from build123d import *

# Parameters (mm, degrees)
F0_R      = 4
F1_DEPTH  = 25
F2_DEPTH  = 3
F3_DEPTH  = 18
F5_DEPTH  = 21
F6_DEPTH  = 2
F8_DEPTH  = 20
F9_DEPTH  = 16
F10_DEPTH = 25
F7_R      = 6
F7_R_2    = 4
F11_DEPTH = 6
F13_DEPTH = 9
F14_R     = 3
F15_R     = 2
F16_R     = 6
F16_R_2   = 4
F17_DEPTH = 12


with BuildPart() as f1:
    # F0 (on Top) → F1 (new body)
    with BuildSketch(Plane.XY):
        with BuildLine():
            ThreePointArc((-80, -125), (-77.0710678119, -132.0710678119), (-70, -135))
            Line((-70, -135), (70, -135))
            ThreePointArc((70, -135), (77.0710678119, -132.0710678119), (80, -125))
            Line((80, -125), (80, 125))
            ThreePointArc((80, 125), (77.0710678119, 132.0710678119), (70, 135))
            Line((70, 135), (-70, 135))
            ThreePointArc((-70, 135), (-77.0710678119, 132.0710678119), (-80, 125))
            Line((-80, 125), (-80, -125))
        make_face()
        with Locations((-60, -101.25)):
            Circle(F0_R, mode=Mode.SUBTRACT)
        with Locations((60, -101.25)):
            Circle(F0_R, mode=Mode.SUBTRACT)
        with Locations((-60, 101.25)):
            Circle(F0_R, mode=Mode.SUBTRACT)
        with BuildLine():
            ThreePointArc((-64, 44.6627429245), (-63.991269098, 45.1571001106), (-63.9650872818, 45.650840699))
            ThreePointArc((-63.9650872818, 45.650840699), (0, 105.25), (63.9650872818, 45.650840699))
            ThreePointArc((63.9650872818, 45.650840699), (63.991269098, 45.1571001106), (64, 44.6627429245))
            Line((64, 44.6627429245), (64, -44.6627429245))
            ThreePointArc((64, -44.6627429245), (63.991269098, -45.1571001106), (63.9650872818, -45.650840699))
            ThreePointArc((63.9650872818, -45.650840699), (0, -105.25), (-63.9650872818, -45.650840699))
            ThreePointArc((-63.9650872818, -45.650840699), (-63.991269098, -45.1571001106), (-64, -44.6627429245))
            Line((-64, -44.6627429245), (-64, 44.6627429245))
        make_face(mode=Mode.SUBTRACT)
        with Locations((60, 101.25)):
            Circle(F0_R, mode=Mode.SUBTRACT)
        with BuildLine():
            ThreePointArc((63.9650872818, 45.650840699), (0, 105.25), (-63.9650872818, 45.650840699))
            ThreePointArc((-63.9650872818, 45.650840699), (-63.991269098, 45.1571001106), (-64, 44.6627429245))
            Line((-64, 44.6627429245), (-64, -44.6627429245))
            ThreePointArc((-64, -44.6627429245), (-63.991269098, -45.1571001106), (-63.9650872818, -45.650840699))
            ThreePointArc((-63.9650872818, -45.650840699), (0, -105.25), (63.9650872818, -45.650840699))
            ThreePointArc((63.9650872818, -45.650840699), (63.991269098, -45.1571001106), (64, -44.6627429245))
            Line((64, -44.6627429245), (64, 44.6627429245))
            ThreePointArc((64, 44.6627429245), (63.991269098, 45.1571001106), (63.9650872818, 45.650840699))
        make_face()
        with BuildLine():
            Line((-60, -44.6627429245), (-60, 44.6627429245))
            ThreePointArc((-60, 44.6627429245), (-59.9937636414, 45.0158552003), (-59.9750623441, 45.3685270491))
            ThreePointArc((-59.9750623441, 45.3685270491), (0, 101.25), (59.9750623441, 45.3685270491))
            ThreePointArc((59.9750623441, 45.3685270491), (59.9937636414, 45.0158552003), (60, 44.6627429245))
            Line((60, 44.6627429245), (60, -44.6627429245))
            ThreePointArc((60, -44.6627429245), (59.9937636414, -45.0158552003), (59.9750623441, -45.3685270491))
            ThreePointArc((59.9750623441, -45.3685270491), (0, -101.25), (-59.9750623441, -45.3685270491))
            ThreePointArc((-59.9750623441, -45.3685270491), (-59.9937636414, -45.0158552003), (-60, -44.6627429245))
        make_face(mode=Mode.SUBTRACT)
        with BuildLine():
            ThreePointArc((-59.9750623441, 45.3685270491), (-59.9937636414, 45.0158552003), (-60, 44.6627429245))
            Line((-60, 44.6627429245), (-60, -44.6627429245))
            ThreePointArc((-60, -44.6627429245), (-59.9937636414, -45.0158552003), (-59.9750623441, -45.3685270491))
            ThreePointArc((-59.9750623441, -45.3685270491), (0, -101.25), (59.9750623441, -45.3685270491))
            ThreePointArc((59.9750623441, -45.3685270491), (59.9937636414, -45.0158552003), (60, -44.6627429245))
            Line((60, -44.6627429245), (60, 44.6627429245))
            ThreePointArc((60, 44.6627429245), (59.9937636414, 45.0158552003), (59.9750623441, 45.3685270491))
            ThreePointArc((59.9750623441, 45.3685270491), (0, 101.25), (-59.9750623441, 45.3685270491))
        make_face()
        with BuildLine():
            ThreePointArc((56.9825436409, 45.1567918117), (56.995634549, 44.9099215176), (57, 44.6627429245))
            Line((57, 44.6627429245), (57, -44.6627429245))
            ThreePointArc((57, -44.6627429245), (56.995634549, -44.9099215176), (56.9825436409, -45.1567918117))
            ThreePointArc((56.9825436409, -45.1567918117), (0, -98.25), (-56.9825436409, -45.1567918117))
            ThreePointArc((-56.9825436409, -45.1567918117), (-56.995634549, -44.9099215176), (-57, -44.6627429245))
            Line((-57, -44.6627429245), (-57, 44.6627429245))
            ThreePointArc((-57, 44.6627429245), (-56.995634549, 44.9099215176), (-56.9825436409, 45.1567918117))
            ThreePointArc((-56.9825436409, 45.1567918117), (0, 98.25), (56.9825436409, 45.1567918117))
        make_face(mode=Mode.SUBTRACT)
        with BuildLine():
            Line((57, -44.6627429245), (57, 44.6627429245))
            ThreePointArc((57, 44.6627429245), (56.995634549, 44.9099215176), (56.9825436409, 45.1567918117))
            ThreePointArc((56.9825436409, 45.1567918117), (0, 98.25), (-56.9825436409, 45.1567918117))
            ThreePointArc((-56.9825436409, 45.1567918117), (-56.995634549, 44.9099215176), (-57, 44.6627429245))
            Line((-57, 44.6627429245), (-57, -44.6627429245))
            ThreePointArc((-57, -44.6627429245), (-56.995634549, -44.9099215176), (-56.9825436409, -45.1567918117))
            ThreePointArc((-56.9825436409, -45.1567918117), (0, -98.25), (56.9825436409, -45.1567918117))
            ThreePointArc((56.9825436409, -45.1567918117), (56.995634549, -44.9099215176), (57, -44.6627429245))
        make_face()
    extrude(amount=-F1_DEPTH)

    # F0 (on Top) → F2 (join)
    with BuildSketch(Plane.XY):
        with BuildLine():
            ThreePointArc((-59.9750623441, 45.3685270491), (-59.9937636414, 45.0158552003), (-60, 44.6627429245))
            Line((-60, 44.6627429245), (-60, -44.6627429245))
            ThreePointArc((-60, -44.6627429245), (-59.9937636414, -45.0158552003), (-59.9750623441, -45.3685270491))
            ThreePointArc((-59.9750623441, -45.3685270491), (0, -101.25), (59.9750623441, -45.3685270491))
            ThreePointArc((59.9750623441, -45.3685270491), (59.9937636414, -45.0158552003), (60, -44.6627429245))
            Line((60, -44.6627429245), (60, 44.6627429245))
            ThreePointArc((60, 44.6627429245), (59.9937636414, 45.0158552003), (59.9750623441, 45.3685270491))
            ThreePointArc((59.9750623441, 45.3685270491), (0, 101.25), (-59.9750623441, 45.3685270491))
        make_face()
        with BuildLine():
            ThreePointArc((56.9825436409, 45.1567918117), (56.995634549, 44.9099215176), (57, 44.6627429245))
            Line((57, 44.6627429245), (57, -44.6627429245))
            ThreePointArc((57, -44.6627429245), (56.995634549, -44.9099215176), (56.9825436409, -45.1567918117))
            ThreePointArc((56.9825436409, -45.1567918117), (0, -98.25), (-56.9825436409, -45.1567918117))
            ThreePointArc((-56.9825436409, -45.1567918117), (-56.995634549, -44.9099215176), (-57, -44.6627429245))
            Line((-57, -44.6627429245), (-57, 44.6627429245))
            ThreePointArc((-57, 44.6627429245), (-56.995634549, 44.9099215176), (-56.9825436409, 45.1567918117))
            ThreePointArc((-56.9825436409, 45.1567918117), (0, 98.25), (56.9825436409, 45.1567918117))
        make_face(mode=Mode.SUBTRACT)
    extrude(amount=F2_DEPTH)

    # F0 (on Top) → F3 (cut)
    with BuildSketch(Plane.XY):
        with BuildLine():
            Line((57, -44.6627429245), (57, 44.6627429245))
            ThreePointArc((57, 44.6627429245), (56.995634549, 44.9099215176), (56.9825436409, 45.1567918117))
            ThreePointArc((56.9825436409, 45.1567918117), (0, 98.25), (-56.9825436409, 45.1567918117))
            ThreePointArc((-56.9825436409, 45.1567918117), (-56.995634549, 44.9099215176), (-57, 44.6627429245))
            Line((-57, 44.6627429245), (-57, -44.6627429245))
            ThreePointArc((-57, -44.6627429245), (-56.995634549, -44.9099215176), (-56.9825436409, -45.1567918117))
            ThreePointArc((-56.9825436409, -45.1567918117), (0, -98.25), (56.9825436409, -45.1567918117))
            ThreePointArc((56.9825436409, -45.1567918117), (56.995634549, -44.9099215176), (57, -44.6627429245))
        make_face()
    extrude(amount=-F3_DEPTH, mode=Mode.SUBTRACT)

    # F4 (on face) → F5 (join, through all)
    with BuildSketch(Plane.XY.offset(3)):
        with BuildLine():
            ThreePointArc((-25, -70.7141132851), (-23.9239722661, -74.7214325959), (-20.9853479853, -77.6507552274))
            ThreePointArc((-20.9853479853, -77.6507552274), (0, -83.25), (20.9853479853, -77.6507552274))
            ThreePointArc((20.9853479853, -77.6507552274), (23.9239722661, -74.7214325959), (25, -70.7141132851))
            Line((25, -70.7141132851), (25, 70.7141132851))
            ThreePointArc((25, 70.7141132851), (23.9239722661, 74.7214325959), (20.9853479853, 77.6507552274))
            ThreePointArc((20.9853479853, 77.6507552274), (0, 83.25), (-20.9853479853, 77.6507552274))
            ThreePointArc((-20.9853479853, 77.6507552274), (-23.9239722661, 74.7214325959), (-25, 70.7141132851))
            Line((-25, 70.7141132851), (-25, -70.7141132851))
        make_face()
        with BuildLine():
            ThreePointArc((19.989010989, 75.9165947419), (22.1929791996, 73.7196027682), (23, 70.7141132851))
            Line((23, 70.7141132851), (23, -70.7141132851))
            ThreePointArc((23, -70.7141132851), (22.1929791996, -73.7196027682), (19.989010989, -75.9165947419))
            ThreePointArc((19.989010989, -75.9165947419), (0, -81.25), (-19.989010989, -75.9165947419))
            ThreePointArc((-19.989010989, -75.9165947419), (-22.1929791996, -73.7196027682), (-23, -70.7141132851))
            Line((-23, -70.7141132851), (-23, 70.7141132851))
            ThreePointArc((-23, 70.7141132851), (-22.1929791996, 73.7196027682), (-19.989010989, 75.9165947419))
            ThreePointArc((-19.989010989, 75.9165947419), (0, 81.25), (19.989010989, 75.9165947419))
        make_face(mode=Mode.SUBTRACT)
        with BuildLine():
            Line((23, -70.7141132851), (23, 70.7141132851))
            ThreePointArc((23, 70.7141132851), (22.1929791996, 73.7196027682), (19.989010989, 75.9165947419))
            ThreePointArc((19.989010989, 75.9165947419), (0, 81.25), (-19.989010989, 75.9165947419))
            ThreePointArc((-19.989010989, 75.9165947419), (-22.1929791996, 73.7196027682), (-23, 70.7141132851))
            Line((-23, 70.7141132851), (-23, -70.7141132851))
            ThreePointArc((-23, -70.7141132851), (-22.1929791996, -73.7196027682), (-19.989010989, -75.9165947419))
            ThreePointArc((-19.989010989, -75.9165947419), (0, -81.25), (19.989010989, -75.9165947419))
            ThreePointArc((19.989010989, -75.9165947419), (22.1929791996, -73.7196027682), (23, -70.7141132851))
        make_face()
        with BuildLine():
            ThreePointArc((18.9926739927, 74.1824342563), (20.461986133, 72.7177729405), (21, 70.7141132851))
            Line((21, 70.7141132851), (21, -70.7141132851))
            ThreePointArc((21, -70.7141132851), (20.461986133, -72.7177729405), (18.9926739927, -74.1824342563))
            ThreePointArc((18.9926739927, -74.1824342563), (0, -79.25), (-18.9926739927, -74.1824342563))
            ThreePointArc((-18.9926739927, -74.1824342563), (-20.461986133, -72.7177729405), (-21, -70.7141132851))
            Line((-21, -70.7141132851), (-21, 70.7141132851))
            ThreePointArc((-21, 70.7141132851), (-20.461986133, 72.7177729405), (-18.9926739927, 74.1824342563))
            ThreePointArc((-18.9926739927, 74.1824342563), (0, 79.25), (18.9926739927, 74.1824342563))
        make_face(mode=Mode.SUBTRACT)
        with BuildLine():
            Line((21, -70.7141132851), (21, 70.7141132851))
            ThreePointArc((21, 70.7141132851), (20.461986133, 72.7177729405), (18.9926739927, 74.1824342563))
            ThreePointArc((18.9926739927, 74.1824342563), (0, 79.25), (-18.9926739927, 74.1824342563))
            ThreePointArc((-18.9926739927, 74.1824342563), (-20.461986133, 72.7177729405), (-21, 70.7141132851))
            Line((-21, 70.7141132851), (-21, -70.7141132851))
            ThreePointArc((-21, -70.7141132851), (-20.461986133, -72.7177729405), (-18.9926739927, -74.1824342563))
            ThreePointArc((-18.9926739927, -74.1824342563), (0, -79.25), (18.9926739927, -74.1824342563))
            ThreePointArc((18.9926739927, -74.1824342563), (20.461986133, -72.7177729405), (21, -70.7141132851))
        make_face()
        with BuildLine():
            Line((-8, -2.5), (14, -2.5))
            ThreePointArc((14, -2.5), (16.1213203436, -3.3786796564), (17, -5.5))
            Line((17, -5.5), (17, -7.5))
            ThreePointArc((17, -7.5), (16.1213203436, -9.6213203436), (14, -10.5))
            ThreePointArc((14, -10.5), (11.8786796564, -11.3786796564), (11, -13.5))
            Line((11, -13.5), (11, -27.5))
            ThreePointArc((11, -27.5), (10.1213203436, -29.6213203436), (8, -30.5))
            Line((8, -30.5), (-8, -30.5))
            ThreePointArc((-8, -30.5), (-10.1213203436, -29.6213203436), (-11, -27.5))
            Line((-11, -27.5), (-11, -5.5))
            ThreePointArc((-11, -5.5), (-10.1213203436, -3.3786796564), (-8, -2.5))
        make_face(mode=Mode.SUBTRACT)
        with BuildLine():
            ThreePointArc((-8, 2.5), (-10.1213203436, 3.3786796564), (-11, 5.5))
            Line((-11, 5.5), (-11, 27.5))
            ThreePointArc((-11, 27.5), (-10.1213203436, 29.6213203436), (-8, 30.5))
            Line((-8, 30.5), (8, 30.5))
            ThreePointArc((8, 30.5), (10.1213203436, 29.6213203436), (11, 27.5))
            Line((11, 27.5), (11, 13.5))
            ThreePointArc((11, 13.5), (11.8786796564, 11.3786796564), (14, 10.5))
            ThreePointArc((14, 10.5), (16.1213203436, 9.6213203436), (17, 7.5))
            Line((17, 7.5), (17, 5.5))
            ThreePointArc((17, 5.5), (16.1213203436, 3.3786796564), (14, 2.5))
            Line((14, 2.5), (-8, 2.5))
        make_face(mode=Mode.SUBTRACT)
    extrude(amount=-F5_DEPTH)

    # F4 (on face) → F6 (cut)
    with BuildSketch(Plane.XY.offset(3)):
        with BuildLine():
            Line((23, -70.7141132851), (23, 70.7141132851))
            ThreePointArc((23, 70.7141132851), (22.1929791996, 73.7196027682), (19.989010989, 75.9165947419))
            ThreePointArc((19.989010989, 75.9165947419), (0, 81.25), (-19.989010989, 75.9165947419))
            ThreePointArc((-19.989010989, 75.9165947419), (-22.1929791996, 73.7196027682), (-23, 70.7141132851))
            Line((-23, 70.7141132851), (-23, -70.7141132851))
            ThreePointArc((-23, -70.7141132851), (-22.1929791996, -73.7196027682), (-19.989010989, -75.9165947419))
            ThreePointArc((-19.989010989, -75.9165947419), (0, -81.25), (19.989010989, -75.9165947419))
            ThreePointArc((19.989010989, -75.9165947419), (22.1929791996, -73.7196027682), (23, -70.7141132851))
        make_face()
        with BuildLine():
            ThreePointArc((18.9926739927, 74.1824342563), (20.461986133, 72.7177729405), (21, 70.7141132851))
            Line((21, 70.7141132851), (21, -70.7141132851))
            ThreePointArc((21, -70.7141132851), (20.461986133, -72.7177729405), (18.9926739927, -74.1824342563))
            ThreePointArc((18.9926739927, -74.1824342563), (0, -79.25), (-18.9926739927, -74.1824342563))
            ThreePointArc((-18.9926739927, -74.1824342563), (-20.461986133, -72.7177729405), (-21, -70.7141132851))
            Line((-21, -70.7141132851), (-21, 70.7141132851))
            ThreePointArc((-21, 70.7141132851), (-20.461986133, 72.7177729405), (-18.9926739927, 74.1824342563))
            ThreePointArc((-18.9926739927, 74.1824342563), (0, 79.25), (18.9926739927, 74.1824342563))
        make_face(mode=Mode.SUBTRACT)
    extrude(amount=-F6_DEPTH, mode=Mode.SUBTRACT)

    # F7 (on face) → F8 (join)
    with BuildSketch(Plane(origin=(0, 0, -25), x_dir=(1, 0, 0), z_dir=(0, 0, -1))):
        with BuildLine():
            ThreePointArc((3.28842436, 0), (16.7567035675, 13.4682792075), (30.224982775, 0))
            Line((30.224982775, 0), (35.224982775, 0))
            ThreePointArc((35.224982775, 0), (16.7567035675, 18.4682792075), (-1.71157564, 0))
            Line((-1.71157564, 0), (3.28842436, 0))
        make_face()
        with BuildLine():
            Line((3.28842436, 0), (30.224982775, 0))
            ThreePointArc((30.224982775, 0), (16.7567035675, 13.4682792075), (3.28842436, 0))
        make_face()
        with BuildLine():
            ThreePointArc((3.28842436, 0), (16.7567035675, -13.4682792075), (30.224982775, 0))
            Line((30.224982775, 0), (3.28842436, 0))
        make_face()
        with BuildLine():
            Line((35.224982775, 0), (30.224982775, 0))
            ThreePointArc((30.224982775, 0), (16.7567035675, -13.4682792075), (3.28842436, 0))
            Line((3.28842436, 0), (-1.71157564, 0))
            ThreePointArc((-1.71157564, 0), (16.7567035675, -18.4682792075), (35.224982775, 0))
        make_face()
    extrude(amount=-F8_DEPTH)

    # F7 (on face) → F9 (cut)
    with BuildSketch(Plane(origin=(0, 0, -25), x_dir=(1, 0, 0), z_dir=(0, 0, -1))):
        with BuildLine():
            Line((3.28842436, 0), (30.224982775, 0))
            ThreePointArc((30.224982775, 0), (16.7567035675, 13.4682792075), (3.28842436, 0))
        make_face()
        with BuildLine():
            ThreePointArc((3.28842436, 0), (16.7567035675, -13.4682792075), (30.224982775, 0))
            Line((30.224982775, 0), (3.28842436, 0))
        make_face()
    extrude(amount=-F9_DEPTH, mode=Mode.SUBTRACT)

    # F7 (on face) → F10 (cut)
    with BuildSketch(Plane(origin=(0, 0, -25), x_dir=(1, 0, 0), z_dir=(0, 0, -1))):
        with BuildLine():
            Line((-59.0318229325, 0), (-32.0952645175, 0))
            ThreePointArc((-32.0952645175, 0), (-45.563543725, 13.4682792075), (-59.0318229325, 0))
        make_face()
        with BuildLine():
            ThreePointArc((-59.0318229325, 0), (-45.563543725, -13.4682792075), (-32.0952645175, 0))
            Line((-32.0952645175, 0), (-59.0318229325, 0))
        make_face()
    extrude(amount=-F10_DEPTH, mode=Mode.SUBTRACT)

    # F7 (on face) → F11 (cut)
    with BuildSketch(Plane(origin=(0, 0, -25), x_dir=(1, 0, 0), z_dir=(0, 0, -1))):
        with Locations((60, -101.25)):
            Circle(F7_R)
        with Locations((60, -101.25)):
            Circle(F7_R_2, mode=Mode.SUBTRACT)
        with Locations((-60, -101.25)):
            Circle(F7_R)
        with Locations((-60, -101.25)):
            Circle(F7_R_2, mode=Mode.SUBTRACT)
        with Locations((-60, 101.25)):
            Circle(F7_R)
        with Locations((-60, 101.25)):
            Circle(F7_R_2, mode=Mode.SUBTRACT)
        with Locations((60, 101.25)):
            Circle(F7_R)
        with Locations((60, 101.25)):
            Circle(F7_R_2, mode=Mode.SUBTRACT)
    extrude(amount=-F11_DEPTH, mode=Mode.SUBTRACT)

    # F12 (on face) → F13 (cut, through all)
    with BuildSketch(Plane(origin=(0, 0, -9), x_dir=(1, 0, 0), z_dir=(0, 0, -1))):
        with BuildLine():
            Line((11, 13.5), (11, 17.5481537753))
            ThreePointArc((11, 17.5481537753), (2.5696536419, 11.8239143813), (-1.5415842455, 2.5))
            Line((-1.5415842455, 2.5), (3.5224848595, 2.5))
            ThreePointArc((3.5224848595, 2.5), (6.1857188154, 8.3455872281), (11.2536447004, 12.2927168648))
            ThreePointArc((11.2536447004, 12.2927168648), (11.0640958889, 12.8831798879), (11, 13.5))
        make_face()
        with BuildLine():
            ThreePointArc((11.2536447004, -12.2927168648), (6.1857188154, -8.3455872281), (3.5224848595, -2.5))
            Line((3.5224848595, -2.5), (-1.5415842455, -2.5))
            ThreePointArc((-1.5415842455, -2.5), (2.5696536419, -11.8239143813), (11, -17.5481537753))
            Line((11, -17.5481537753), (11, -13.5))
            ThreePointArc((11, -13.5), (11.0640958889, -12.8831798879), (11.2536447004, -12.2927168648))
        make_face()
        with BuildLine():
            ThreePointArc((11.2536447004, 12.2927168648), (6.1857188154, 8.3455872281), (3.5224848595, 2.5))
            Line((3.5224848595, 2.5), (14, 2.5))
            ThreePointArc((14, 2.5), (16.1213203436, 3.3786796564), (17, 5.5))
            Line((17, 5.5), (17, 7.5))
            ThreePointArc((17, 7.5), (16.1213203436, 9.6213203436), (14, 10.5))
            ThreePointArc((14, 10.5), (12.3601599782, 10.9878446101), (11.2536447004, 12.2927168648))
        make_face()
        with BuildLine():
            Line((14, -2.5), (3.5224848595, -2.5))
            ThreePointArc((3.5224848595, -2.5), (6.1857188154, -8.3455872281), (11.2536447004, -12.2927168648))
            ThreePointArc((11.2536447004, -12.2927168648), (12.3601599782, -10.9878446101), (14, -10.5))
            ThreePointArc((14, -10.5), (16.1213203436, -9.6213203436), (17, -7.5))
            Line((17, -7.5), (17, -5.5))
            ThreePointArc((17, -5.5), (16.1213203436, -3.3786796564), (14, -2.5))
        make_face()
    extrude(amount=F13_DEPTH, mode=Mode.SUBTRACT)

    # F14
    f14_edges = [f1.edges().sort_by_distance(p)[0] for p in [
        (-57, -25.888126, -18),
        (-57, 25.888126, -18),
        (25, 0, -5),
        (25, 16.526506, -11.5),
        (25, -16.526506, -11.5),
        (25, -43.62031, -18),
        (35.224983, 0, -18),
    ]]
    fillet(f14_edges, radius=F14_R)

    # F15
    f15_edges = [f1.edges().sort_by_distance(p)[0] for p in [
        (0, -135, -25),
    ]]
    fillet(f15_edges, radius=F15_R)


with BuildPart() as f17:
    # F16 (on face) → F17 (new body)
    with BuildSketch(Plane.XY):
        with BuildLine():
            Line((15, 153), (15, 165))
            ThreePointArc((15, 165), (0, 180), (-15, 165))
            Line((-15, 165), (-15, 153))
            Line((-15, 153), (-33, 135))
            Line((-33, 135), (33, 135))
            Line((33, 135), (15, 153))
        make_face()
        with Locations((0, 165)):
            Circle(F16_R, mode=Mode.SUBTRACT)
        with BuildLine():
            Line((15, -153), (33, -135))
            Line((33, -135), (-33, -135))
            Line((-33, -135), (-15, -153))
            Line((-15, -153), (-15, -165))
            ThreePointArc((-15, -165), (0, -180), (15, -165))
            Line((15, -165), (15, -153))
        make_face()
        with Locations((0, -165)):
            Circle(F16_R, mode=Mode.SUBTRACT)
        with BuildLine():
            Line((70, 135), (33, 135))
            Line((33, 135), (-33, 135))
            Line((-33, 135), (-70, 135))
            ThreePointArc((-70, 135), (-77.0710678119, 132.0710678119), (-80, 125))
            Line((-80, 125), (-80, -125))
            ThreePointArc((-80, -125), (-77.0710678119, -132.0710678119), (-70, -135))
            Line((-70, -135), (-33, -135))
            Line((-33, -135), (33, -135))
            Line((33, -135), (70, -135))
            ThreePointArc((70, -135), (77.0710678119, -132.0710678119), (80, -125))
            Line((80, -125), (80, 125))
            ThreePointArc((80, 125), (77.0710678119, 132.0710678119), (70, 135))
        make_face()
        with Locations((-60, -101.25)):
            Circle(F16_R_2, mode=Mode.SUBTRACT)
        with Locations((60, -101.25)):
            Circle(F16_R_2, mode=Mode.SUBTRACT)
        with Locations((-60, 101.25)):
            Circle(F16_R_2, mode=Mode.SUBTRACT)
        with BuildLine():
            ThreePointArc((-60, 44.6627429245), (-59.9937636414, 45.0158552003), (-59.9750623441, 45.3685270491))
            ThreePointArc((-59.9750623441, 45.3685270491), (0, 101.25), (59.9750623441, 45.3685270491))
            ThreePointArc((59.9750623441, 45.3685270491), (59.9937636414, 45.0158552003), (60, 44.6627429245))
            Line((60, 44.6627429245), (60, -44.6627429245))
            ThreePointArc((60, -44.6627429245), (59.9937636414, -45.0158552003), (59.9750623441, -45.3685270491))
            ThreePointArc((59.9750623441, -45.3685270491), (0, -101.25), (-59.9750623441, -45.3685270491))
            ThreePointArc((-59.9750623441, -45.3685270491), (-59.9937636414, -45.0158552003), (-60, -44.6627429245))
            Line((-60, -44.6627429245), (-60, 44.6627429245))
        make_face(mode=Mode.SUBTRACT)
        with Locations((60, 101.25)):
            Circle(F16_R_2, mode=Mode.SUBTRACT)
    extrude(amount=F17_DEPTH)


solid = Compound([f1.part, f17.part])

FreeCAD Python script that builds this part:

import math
import FreeCAD as App
import Part
import Sketcher

V = App.Vector


def edges_at(feature, points):
    """Names of the edges that pass closest to the given points."""
    edges = feature.Shape.Edges
    near = lambda p: min(range(len(edges)), key=lambda i: edges[i].distToShape(Part.Vertex(*p))[0])
    return sorted({f"Edge{near(p) + 1}" for p in points})

doc = App.newDocument("Part")
body = doc.addObject("PartDesign::Body", "Body")

sketch1 = body.newObject("Sketcher::SketchObject", "Sketch")
sketch1.AttachmentSupport = (doc.getObject("XY_Plane"), [""])
sketch1.MapMode = "FlatFace"
sketch1.addGeometry([
    Part.ArcOfCircle(Part.Circle(V(-70, -125, 0), V(0, 0, 1), 10), math.radians(180), math.radians(270)),
    Part.LineSegment(V(-70, -135, 0), V(70, -135, 0)),
    Part.ArcOfCircle(Part.Circle(V(70, -125, 0), V(0, 0, 1), 10), math.radians(-90), math.radians(0)),
    Part.LineSegment(V(80, -125, 0), V(80, 125, 0)),
    Part.ArcOfCircle(Part.Circle(V(70, 125, 0), V(0, 0, 1), 10), math.radians(0), math.radians(90)),
    Part.LineSegment(V(70, 135, 0), V(-70, 135, 0)),
    Part.ArcOfCircle(Part.Circle(V(-70, 125, 0), V(0, 0, 1), 10), math.radians(90), math.radians(180)),
    Part.LineSegment(V(-80, 125, 0), V(-80, -125, 0)),
    Part.Circle(V(-60, -101.2, 0), V(0, 0, 1), 4),
    Part.Circle(V(60, -101.2, 0), V(0, 0, 1), 4),
    Part.Circle(V(-60, 101.2, 0), V(0, 0, 1), 4),
    Part.Circle(V(60, 101.2, 0), V(0, 0, 1), 4),
], False)
sketch1.addConstraint([
    Sketcher.Constraint("Tangent", 0, 2, 1, 1),
    Sketcher.Constraint("Tangent", 1, 2, 2, 1),
    Sketcher.Constraint("Tangent", 2, 2, 3, 1),
    Sketcher.Constraint("Tangent", 3, 2, 4, 1),
    Sketcher.Constraint("Tangent", 4, 2, 5, 1),
    Sketcher.Constraint("Tangent", 5, 2, 6, 1),
    Sketcher.Constraint("Tangent", 6, 2, 7, 1),
    Sketcher.Constraint("Tangent", 7, 2, 0, 1),
    Sketcher.Constraint("Horizontal", 1),
    Sketcher.Constraint("Vertical", 3),
    Sketcher.Constraint("Horizontal", 5),
    Sketcher.Constraint("Vertical", 7),
    Sketcher.Constraint("Equal", 0, 2),
    Sketcher.Constraint("Equal", 2, 4),
    Sketcher.Constraint("Equal", 4, 6),
    Sketcher.Constraint("Equal", 8, 9),
    Sketcher.Constraint("Equal", 9, 10),
    Sketcher.Constraint("Equal", 10, 11),
    Sketcher.Constraint("Symmetric", 0, 3, 4, 3, -1, 1),
    Sketcher.Constraint("Symmetric", 9, 3, 10, 3, -1, 1),
    Sketcher.Constraint("Symmetric", 8, 3, 11, 3, -1, 1),
    Sketcher.Constraint("Symmetric", 8, 3, 9, 3, -2),
    Sketcher.Constraint("Diameter", 8, 8.0),
    Sketcher.Constraint("Radius", 0, 10.0),
    Sketcher.Constraint("DistanceX", 1, 1, 1, 2, 140.0),
    Sketcher.Constraint("DistanceY", 3, 1, 3, 2, 250.0),
    Sketcher.Constraint("DistanceX", 8, 3, -1, 1, 60.0),
    Sketcher.Constraint("DistanceY", 8, 3, 10, 3, 202.5),
])
pad1 = body.newObject("PartDesign::Pad", "Pad")
pad1.Profile = sketch1
pad1.Length = 25
pad1.Reversed = True

sketch2 = body.newObject("Sketcher::SketchObject", "Sketch001")
sketch2.AttachmentSupport = (doc.getObject("XY_Plane"), [""])
sketch2.MapMode = "FlatFace"
sketch2.addGeometry([
    Part.ArcOfCircle(Part.Circle(V(-50, 44.66, 0), V(0, 0, 1), 10), math.radians(175.95), math.radians(180)),
    Part.LineSegment(V(-60, 44.66, 0), V(-60, -44.66, 0)),
    Part.ArcOfCircle(Part.Circle(V(-50, -44.66, 0), V(0, 0, 1), 10), math.radians(-180), math.radians(-175.95)),
    Part.ArcOfCircle(Part.Circle(V(0, -41.12, 0), V(0, 0, 1), 60.12), math.radians(-176), math.radians(-4)),
    Part.ArcOfCircle(Part.Circle(V(50, -44.66, 0), V(0, 0, 1), 10), math.radians(-4.05), math.radians(0)),
    Part.LineSegment(V(60, -44.66, 0), V(60, 44.66, 0)),
    Part.ArcOfCircle(Part.Circle(V(50, 44.66, 0), V(0, 0, 1), 10), math.radians(0), math.radians(4.05)),
    Part.ArcOfCircle(Part.Circle(V(0, 41.12, 0), V(0, 0, 1), 60.12), math.radians(4), math.radians(176)),
    Part.ArcOfCircle(Part.Circle(V(0, 41.12, 0), V(0, 0, 1), 57.12), math.radians(4), math.radians(176)),
    Part.ArcOfCircle(Part.Circle(V(50, 44.66, 0), V(0, 0, 1), 7), math.radians(0), math.radians(4.05)),
    Part.LineSegment(V(57, 44.66, 0), V(57, -44.66, 0)),
    Part.ArcOfCircle(Part.Circle(V(50, -44.66, 0), V(0, 0, 1), 7), math.radians(-4.05), math.radians(0)),
    Part.ArcOfCircle(Part.Circle(V(0, -41.12, 0), V(0, 0, 1), 57.12), math.radians(-176), math.radians(-4)),
    Part.ArcOfCircle(Part.Circle(V(-50, -44.66, 0), V(0, 0, 1), 7), math.radians(180), math.radians(184.05)),
    Part.LineSegment(V(-57, -44.66, 0), V(-57, 44.66, 0)),
    Part.ArcOfCircle(Part.Circle(V(-50, 44.66, 0), V(0, 0, 1), 7), math.radians(175.95), math.radians(180)),
], False)
sketch2.addConstraint([
    Sketcher.Constraint("Tangent", 0, 2, 1, 1),
    Sketcher.Constraint("Tangent", 1, 2, 2, 1),
    Sketcher.Constraint("Tangent", 2, 2, 3, 1),
    Sketcher.Constraint("Tangent", 3, 2, 4, 1),
    Sketcher.Constraint("Tangent", 4, 2, 5, 1),
    Sketcher.Constraint("Tangent", 5, 2, 6, 1),
    Sketcher.Constraint("Tangent", 6, 2, 7, 1),
    Sketcher.Constraint("Tangent", 7, 2, 0, 1),
    Sketcher.Constraint("Tangent", 8, 1, 9, 2),
    Sketcher.Constraint("Tangent", 9, 1, 10, 1),
    Sketcher.Constraint("Tangent", 10, 2, 11, 2),
    Sketcher.Constraint("Tangent", 11, 1, 12, 2),
    Sketcher.Constraint("Tangent", 12, 1, 13, 2),
    Sketcher.Constraint("Tangent", 13, 1, 14, 1),
    Sketcher.Constraint("Tangent", 14, 2, 15, 2),
    Sketcher.Constraint("Tangent", 15, 1, 8, 2),
    Sketcher.Constraint("Vertical", 1),
    Sketcher.Constraint("Vertical", 5),
    Sketcher.Constraint("Vertical", 10),
    Sketcher.Constraint("Vertical", 14),
    Sketcher.Constraint("Coincident", 8, 3, 7, 3),
    Sketcher.Constraint("Coincident", 9, 3, 6, 3),
    Sketcher.Constraint("Coincident", 11, 3, 4, 3),
    Sketcher.Constraint("Coincident", 12, 3, 3, 3),
    Sketcher.Constraint("Coincident", 13, 3, 2, 3),
    Sketcher.Constraint("Equal", 0, 2),
    Sketcher.Constraint("Equal", 2, 4),
    Sketcher.Constraint("Equal", 4, 6),
    Sketcher.Constraint("Equal", 3, 7),
    Sketcher.Constraint("Equal", 13, 15),
    Sketcher.Constraint("Symmetric", 0, 3, 4, 3, -1, 1),
    Sketcher.Constraint("Symmetric", 3, 3, 7, 3, -1),
    Sketcher.Constraint("Radius", 0, 10.0),
    Sketcher.Constraint("Radius", 9, 7.0),
    Sketcher.Constraint("DistanceX", 0, 3, -1, 1, 50.0),
    Sketcher.Constraint("Radius", 3, 60.125),
    Sketcher.Constraint("DistanceY", 3, 3, 7, 3, 82.25),
])
pad2 = body.newObject("PartDesign::Pad", "Pad001")
pad2.Profile = sketch2
pad2.Length = 3

sketch3 = body.newObject("Sketcher::SketchObject", "Sketch002")
sketch3.AttachmentSupport = (doc.getObject("XY_Plane"), [""])
sketch3.MapMode = "FlatFace"
sketch3.addGeometry([
    Part.LineSegment(V(57, -44.66, 0), V(57, 44.66, 0)),
    Part.ArcOfCircle(Part.Circle(V(50, 44.66, 0), V(0, 0, 1), 7), math.radians(0), math.radians(4.05)),
    Part.ArcOfCircle(Part.Circle(V(0, 41.12, 0), V(0, 0, 1), 57.12), math.radians(4), math.radians(176)),
    Part.ArcOfCircle(Part.Circle(V(-50, 44.66, 0), V(0, 0, 1), 7), math.radians(175.95), math.radians(180)),
    Part.LineSegment(V(-57, 44.66, 0), V(-57, -44.66, 0)),
    Part.ArcOfCircle(Part.Circle(V(-50, -44.66, 0), V(0, 0, 1), 7), math.radians(180), math.radians(184.05)),
    Part.ArcOfCircle(Part.Circle(V(0, -41.12, 0), V(0, 0, 1), 57.12), math.radians(-176), math.radians(-4)),
    Part.ArcOfCircle(Part.Circle(V(50, -44.66, 0), V(0, 0, 1), 7), math.radians(-4.05), math.radians(0)),
], False)
sketch3.addConstraint([
    Sketcher.Constraint("Tangent", 0, 2, 1, 1),
    Sketcher.Constraint("Tangent", 1, 2, 2, 1),
    Sketcher.Constraint("Tangent", 2, 2, 3, 1),
    Sketcher.Constraint("Tangent", 3, 2, 4, 1),
    Sketcher.Constraint("Tangent", 4, 2, 5, 1),
    Sketcher.Constraint("Tangent", 5, 2, 6, 1),
    Sketcher.Constraint("Tangent", 6, 2, 7, 1),
    Sketcher.Constraint("Tangent", 7, 2, 0, 1),
    Sketcher.Constraint("Vertical", 0),
    Sketcher.Constraint("Vertical", 4),
    Sketcher.Constraint("Equal", 1, 3),
    Sketcher.Constraint("Equal", 3, 5),
    Sketcher.Constraint("Equal", 2, 6),
    Sketcher.Constraint("Equal", 5, 7),
    Sketcher.Constraint("Symmetric", 1, 3, 5, 3, -1, 1),
    Sketcher.Constraint("Symmetric", 2, 3, 6, 3, -1),
    Sketcher.Constraint("Radius", 1, 7.0),
    Sketcher.Constraint("DistanceX", -1, 1, 1, 3, 50.0),
    Sketcher.Constraint("Radius", 2, 57.125),
    Sketcher.Constraint("DistanceY", 6, 3, 2, 3, 82.25),
])
pocket1 = body.newObject("PartDesign::Pocket", "Pocket")
pocket1.Profile = sketch3
pocket1.Length = 18

sketch4 = body.newObject("Sketcher::SketchObject", "Sketch003")
sketch4.AttachmentSupport = (doc.getObject("XY_Plane"), [""])
sketch4.MapMode = "FlatFace"
sketch4.AttachmentOffset = App.Placement(V(0, 0, 3), App.Rotation())
sketch4.addGeometry([
    Part.ArcOfCircle(Part.Circle(V(-17, -70.7, 0), V(0, 0, 1), 8), math.radians(180), math.radians(240)),
    Part.ArcOfCircle(Part.Circle(V(0, -41.1, 0), V(0, 0, 1), 42.1), math.radians(-120), math.radians(-60)),
    Part.ArcOfCircle(Part.Circle(V(17, -70.7, 0), V(0, 0, 1), 8), math.radians(-60), math.radians(0)),
    Part.LineSegment(V(25, -70.7, 0), V(25, 70.7, 0)),
    Part.ArcOfCircle(Part.Circle(V(17, 70.7, 0), V(0, 0, 1), 8), math.radians(0), math.radians(60)),
    Part.ArcOfCircle(Part.Circle(V(0, 41.1, 0), V(0, 0, 1), 42.1), math.radians(60), math.radians(120)),
    Part.ArcOfCircle(Part.Circle(V(-17, 70.7, 0), V(0, 0, 1), 8), math.radians(120), math.radians(180)),
    Part.LineSegment(V(-25, 70.7, 0), V(-25, -70.7, 0)),
    Part.ArcOfCircle(Part.Circle(V(-8, -5.5, 0), V(0, 0, 1), 3), math.radians(90), math.radians(180)),
    Part.LineSegment(V(-8, -2.5, 0), V(14, -2.5, 0)),
    Part.ArcOfCircle(Part.Circle(V(14, -5.5, 0), V(0, 0, 1), 3), math.radians(0), math.radians(90)),
    Part.LineSegment(V(17, -5.5, 0), V(17, -7.5, 0)),
    Part.ArcOfCircle(Part.Circle(V(14, -7.5, 0), V(0, 0, 1), 3), math.radians(-90), math.radians(0)),
    Part.ArcOfCircle(Part.Circle(V(14, -13.5, 0), V(0, 0, 1), 3), math.radians(90), math.radians(180)),
    Part.LineSegment(V(11, -13.5, 0), V(11, -27.5, 0)),
    Part.ArcOfCircle(Part.Circle(V(8, -27.5, 0), V(0, 0, 1), 3), math.radians(-90), math.radians(0)),
    Part.LineSegment(V(8, -30.5, 0), V(-8, -30.5, 0)),
    Part.ArcOfCircle(Part.Circle(V(-8, -27.5, 0), V(0, 0, 1), 3), math.radians(180), math.radians(270)),
    Part.LineSegment(V(-11, -27.5, 0), V(-11, -5.5, 0)),
    Part.LineSegment(V(14, 2.5, 0), V(-8, 2.5, 0)),
    Part.ArcOfCircle(Part.Circle(V(-8, 5.5, 0), V(0, 0, 1), 3), math.radians(180), math.radians(270)),
    Part.LineSegment(V(-11, 5.5, 0), V(-11, 27.5, 0)),
    Part.ArcOfCircle(Part.Circle(V(-8, 27.5, 0), V(0, 0, 1), 3), math.radians(90), math.radians(180)),
    Part.LineSegment(V(-8, 30.5, 0), V(8, 30.5, 0)),
    Part.ArcOfCircle(Part.Circle(V(8, 27.5, 0), V(0, 0, 1), 3), math.radians(0), math.radians(90)),
    Part.LineSegment(V(11, 27.5, 0), V(11, 13.5, 0)),
    Part.ArcOfCircle(Part.Circle(V(14, 13.5, 0), V(0, 0, 1), 3), math.radians(180), math.radians(270)),
    Part.ArcOfCircle(Part.Circle(V(14, 7.5, 0), V(0, 0, 1), 3), math.radians(0), math.radians(90)),
    Part.LineSegment(V(17, 7.5, 0), V(17, 5.5, 0)),
    Part.ArcOfCircle(Part.Circle(V(14, 5.5, 0), V(0, 0, 1), 3), math.radians(-90), math.radians(0)),
], False)
sketch4.addConstraint([
    Sketcher.Constraint("Tangent", 0, 2, 1, 1),
    Sketcher.Constraint("Tangent", 1, 2, 2, 1),
    Sketcher.Constraint("Tangent", 2, 2, 3, 1),
    Sketcher.Constraint("Tangent", 3, 2, 4, 1),
    Sketcher.Constraint("Tangent", 4, 2, 5, 1),
    Sketcher.Constraint("Tangent", 5, 2, 6, 1),
    Sketcher.Constraint("Tangent", 6, 2, 7, 1),
    Sketcher.Constraint("Tangent", 7, 2, 0, 1),
    Sketcher.Constraint("Tangent", 8, 1, 9, 1),
    Sketcher.Constraint("Tangent", 9, 2, 10, 2),
    Sketcher.Constraint("Tangent", 10, 1, 11, 1),
    Sketcher.Constraint("Tangent", 11, 2, 12, 2),
    Sketcher.Constraint("Tangent", 12, 1, 13, 1),
    Sketcher.Constraint("Tangent", 13, 2, 14, 1),
    Sketcher.Constraint("Tangent", 14, 2, 15, 2),
    Sketcher.Constraint("Tangent", 15, 1, 16, 1),
    Sketcher.Constraint("Tangent", 16, 2, 17, 2),
    Sketcher.Constraint("Tangent", 17, 1, 18, 1),
    Sketcher.Constraint("Tangent", 18, 2, 8, 2),
    Sketcher.Constraint("Tangent", 19, 2, 20, 2),
    Sketcher.Constraint("Tangent", 20, 1, 21, 1),
    Sketcher.Constraint("Tangent", 21, 2, 22, 2),
    Sketcher.Constraint("Tangent", 22, 1, 23, 1),
    Sketcher.Constraint("Tangent", 23, 2, 24, 2),
    Sketcher.Constraint("Tangent", 24, 1, 25, 1),
    Sketcher.Constraint("Tangent", 25, 2, 26, 1),
    Sketcher.Constraint("Tangent", 26, 2, 27, 2),
    Sketcher.Constraint("Tangent", 27, 1, 28, 1),
    Sketcher.Constraint("Tangent", 28, 2, 29, 2),
    Sketcher.Constraint("Tangent", 29, 1, 19, 1),
    Sketcher.Constraint("Vertical", 3),
    Sketcher.Constraint("Vertical", 7),
    Sketcher.Constraint("Horizontal", 9),
    Sketcher.Constraint("Vertical", 11),
    Sketcher.Constraint("Vertical", 14),
    Sketcher.Constraint("Horizontal", 16),
    Sketcher.Constraint("Vertical", 18),
    Sketcher.Constraint("Horizontal", 19),
    Sketcher.Constraint("Vertical", 21),
    Sketcher.Constraint("Horizontal", 23),
    Sketcher.Constraint("Vertical", 25),
    Sketcher.Constraint("Vertical", 28),
    Sketcher.Constraint("Equal", 0, 2),
    Sketcher.Constraint("Equal", 2, 4),
    Sketcher.Constraint("Equal", 1, 5),
    Sketcher.Constraint("Equal", 4, 6),
    Sketcher.Constraint("Equal", 8, 10),
    Sketcher.Constraint("Equal", 10, 12),
    Sketcher.Constraint("Equal", 12, 13),
    Sketcher.Constraint("Equal", 13, 15),
    Sketcher.Constraint("Equal", 15, 17),
    Sketcher.Constraint("Equal", 17, 20),
    Sketcher.Constraint("Equal", 20, 22),
    Sketcher.Constraint("Equal", 22, 24),
    Sketcher.Constraint("Equal", 24, 26),
    Sketcher.Constraint("Equal", 26, 27),
    Sketcher.Constraint("Equal", 27, 29),
    Sketcher.Constraint("Symmetric", 0, 3, 4, 3, -1, 1),
    Sketcher.Constraint("Symmetric", 15, 3, 22, 3, -1, 1),
    Sketcher.Constraint("Symmetric", 1, 3, 5, 3, -1),
    Sketcher.Constraint("Symmetric", 8, 3, 20, 3, -1),
    Sketcher.Constraint("Symmetric", 13, 3, 26, 3, -1),
    Sketcher.Constraint("Vertical", 12, 3, 13, 3),
    Sketcher.Constraint("Vertical", 26, 3, 27, 3),
    Sketcher.Constraint("Vertical", 4, 3, 10, 1),
    Sketcher.Constraint("Equal", 19, 18),
    Sketcher.Constraint("Radius", 0, 8.0),
    Sketcher.Constraint("Radius", 8, 3.0),
    Sketcher.Constraint("DistanceX", 9, 1, 9, 2, 22.0),
    Sketcher.Constraint("DistanceY", 11, 2, 11, 1, 2.0),
    Sketcher.Constraint("Radius", 1, 42.125),
    Sketcher.Constraint("DistanceY", 8, 3, 20, 3, 11.0),
    Sketcher.Constraint("DistanceY", 1, 3, 5, 3, 82.25),
])
pad3 = body.newObject("PartDesign::Pad", "Pad002")
pad3.Profile = sketch4
pad3.Type = "UpToLast"
pad3.Reversed = True

sketch5 = body.newObject("Sketcher::SketchObject", "Sketch004")
sketch5.AttachmentSupport = (doc.getObject("XY_Plane"), [""])
sketch5.MapMode = "FlatFace"
sketch5.AttachmentOffset = App.Placement(V(0, 0, 3), App.Rotation())
sketch5.addGeometry([
    Part.LineSegment(V(23, -70.7, 0), V(23, 70.7, 0)),
    Part.ArcOfCircle(Part.Circle(V(17, 70.7, 0), V(0, 0, 1), 6), math.radians(0), math.radians(60)),
    Part.ArcOfCircle(Part.Circle(V(0, 41.1, 0), V(0, 0, 1), 40.1), math.radians(60), math.radians(120)),
    Part.ArcOfCircle(Part.Circle(V(-17, 70.7, 0), V(0, 0, 1), 6), math.radians(120), math.radians(180)),
    Part.LineSegment(V(-23, 70.7, 0), V(-23, -70.7, 0)),
    Part.ArcOfCircle(Part.Circle(V(-17, -70.7, 0), V(0, 0, 1), 6), math.radians(180), math.radians(240)),
    Part.ArcOfCircle(Part.Circle(V(0, -41.1, 0), V(0, 0, 1), 40.1), math.radians(-120), math.radians(-60)),
    Part.ArcOfCircle(Part.Circle(V(17, -70.7, 0), V(0, 0, 1), 6), math.radians(-60), math.radians(0)),
    Part.ArcOfCircle(Part.Circle(V(0, 41.1, 0), V(0, 0, 1), 38.1), math.radians(60), math.radians(120)),
    Part.ArcOfCircle(Part.Circle(V(17, 70.7, 0), V(0, 0, 1), 4), math.radians(0), math.radians(60)),
    Part.LineSegment(V(21, 70.7, 0), V(21, -70.7, 0)),
    Part.ArcOfCircle(Part.Circle(V(17, -70.7, 0), V(0, 0, 1), 4), math.radians(-60), math.radians(0)),
    Part.ArcOfCircle(Part.Circle(V(0, -41.1, 0), V(0, 0, 1), 38.1), math.radians(-120), math.radians(-60)),
    Part.ArcOfCircle(Part.Circle(V(-17, -70.7, 0), V(0, 0, 1), 4), math.radians(180), math.radians(240)),
    Part.LineSegment(V(-21, -70.7, 0), V(-21, 70.7, 0)),
    Part.ArcOfCircle(Part.Circle(V(-17, 70.7, 0), V(0, 0, 1), 4), math.radians(120), math.radians(180)),
], False)
sketch5.addConstraint([
    Sketcher.Constraint("Tangent", 0, 2, 1, 1),
    Sketcher.Constraint("Tangent", 1, 2, 2, 1),
    Sketcher.Constraint("Tangent", 2, 2, 3, 1),
    Sketcher.Constraint("Tangent", 3, 2, 4, 1),
    Sketcher.Constraint("Tangent", 4, 2, 5, 1),
    Sketcher.Constraint("Tangent", 5, 2, 6, 1),
    Sketcher.Constraint("Tangent", 6, 2, 7, 1),
    Sketcher.Constraint("Tangent", 7, 2, 0, 1),
    Sketcher.Constraint("Tangent", 8, 1, 9, 2),
    Sketcher.Constraint("Tangent", 9, 1, 10, 1),
    Sketcher.Constraint("Tangent", 10, 2, 11, 2),
    Sketcher.Constraint("Tangent", 11, 1, 12, 2),
    Sketcher.Constraint("Tangent", 12, 1, 13, 2),
    Sketcher.Constraint("Tangent", 13, 1, 14, 1),
    Sketcher.Constraint("Tangent", 14, 2, 15, 2),
    Sketcher.Constraint("Tangent", 15, 1, 8, 2),
    Sketcher.Constraint("Vertical", 0),
    Sketcher.Constraint("Vertical", 4),
    Sketcher.Constraint("Vertical", 10),
    Sketcher.Constraint("Vertical", 14),
    Sketcher.Constraint("Coincident", 8, 3, 2, 3),
    Sketcher.Constraint("Coincident", 9, 3, 1, 3),
    Sketcher.Constraint("Coincident", 11, 3, 7, 3),
    Sketcher.Constraint("Coincident", 12, 3, 6, 3),
    Sketcher.Constraint("Coincident", 13, 3, 5, 3),
    Sketcher.Constraint("Equal", 1, 3),
    Sketcher.Constraint("Equal", 3, 5),
    Sketcher.Constraint("Equal", 2, 6),
    Sketcher.Constraint("Equal", 5, 7),
    Sketcher.Constraint("Equal", 13, 15),
    Sketcher.Constraint("Symmetric", 1, 3, 5, 3, -1, 1),
    Sketcher.Constraint("Symmetric", 2, 3, 6, 3, -1),
    Sketcher.Constraint("Radius", 1, 6.0),
    Sketcher.Constraint("Radius", 9, 4.0),
    Sketcher.Constraint("DistanceX", -1, 1, 1, 3, 17.0),
    Sketcher.Constraint("Radius", 2, 40.125),
    Sketcher.Constraint("DistanceY", 6, 3, 2, 3, 82.25),
])
pocket2 = body.newObject("PartDesign::Pocket", "Pocket001")
pocket2.Profile = sketch5
pocket2.Length = 2

sketch6 = body.newObject("Sketcher::SketchObject", "Sketch005")
sketch6.AttachmentSupport = (doc.getObject("XY_Plane"), [""])
sketch6.MapMode = "FlatFace"
sketch6.AttachmentOffset = App.Placement(V(0, 0, -25), App.Rotation())
sketch6.addGeometry(Part.Circle(V(17, 0, 0), V(0, 0, 1), 18), False)
sketch6.addConstraint([
    Sketcher.Constraint("PointOnObject", 0, 3, -1),
    Sketcher.Constraint("Diameter", 0, 36.936558),
    Sketcher.Constraint("DistanceX", -1, 1, 0, 3, 16.756704),
])
pad4 = body.newObject("PartDesign::Pad", "Pad003")
pad4.Profile = sketch6
pad4.Length = 20

sketch7 = body.newObject("Sketcher::SketchObject", "Sketch006")
sketch7.AttachmentSupport = (doc.getObject("XY_Plane"), [""])
sketch7.MapMode = "FlatFace"
sketch7.AttachmentOffset = App.Placement(V(0, 0, -25), App.Rotation())
sketch7.addGeometry(Part.Circle(V(17, 0, 0), V(0, 0, 1), 13), False)
sketch7.addConstraint([
    Sketcher.Constraint("PointOnObject", 0, 3, -1),
    Sketcher.Constraint("Diameter", 0, 26.936558),
    Sketcher.Constraint("DistanceX", -1, 1, 0, 3, 16.756704),
])
pocket3 = body.newObject("PartDesign::Pocket", "Pocket002")
pocket3.Profile = sketch7
pocket3.Length = 16
pocket3.Reversed = True

sketch8 = body.newObject("Sketcher::SketchObject", "Sketch007")
sketch8.AttachmentSupport = (doc.getObject("XY_Plane"), [""])
sketch8.MapMode = "FlatFace"
sketch8.AttachmentOffset = App.Placement(V(0, 0, -25), App.Rotation())
sketch8.addGeometry(Part.Circle(V(-46, 0, 0), V(0, 0, 1), 13), False)
sketch8.addConstraint([
    Sketcher.Constraint("PointOnObject", 0, 3, -1),
    Sketcher.Constraint("Diameter", 0, 26.936558),
    Sketcher.Constraint("DistanceX", 0, 3, -1, 1, 45.563544),
])
pocket4 = body.newObject("PartDesign::Pocket", "Pocket003")
pocket4.Profile = sketch8
pocket4.Length = 25
pocket4.Reversed = True

sketch9 = body.newObject("Sketcher::SketchObject", "Sketch008")
sketch9.AttachmentSupport = (doc.getObject("XY_Plane"), [""])
sketch9.MapMode = "FlatFace"
sketch9.AttachmentOffset = App.Placement(V(0, 0, -25), App.Rotation())
sketch9.addGeometry([
    Part.Circle(V(60, 101.2, 0), V(0, 0, 1), 6),
    Part.Circle(V(60, 101.2, 0), V(0, 0, 1), 4),
    Part.Circle(V(-60, 101.2, 0), V(0, 0, 1), 6),
    Part.Circle(V(-60, 101.2, 0), V(0, 0, 1), 4),
    Part.Circle(V(-60, -101.2, 0), V(0, 0, 1), 6),
    Part.Circle(V(-60, -101.2, 0), V(0, 0, 1), 4),
    Part.Circle(V(60, -101.2, 0), V(0, 0, 1), 6),
    Part.Circle(V(60, -101.2, 0), V(0, 0, 1), 4),
], False)
sketch9.addConstraint([
    Sketcher.Constraint("Coincident", 1, 3, 0, 3),
    Sketcher.Constraint("Coincident", 3, 3, 2, 3),
    Sketcher.Constraint("Coincident", 5, 3, 4, 3),
    Sketcher.Constraint("Coincident", 7, 3, 6, 3),
    Sketcher.Constraint("Equal", 0, 2),
    Sketcher.Constraint("Equal", 1, 3),
    Sketcher.Constraint("Equal", 2, 4),
    Sketcher.Constraint("Equal", 3, 5),
    Sketcher.Constraint("Equal", 4, 6),
    Sketcher.Constraint("Equal", 5, 7),
    Sketcher.Constraint("Symmetric", 0, 3, 4, 3, -1, 1),
    Sketcher.Constraint("Symmetric", 2, 3, 6, 3, -1, 1),
    Sketcher.Constraint("Symmetric", 0, 3, 2, 3, -2),
    Sketcher.Constraint("Diameter", 0, 12.0),
    Sketcher.Constraint("Diameter", 1, 8.0),
    Sketcher.Constraint("DistanceX", -1, 1, 0, 3, 60.0),
    Sketcher.Constraint("DistanceY", 4, 3, 2, 3, 202.5),
])
pocket5 = body.newObject("PartDesign::Pocket", "Pocket004")
pocket5.Profile = sketch9
pocket5.Length = 6
pocket5.Reversed = True

sketch10 = body.newObject("Sketcher::SketchObject", "Sketch009")
sketch10.AttachmentSupport = (doc.getObject("XY_Plane"), [""])
sketch10.MapMode = "FlatFace"
sketch10.AttachmentOffset = App.Placement(V(0, 0, -9), App.Rotation())
sketch10.addGeometry([
    Part.LineSegment(V(11, -13.5, 0), V(11, -17.5, 0)),
    Part.ArcOfCircle(Part.Circle(V(16.8, 0, 0), V(0, 0, 1), 18.5), math.radians(-172), math.radians(-108)),
    Part.LineSegment(V(-1.5, -2.5, 0), V(14, -2.5, 0)),
    Part.ArcOfCircle(Part.Circle(V(14, -5.5, 0), V(0, 0, 1), 3), math.radians(0), math.radians(90)),
    Part.LineSegment(V(17, -5.5, 0), V(17, -7.5, 0)),
    Part.ArcOfCircle(Part.Circle(V(14, -7.5, 0), V(0, 0, 1), 3), math.radians(-90), math.radians(0)),
    Part.ArcOfCircle(Part.Circle(V(14, -13.5, 0), V(0, 0, 1), 3), math.radians(90), math.radians(156)),
    Part.ArcOfCircle(Part.Circle(V(14, -13.5, 0), V(0, 0, 1), 3), math.radians(156), math.radians(180)),
    Part.ArcOfCircle(Part.Circle(V(16.8, 0, 0), V(0, 0, 1), 18.5), math.radians(108), math.radians(172)),
    Part.LineSegment(V(11, 17.5, 0), V(11, 13.5, 0)),
    Part.ArcOfCircle(Part.Circle(V(14, 13.5, 0), V(0, 0, 1), 3), math.radians(180), math.radians(204)),
    Part.ArcOfCircle(Part.Circle(V(14, 13.5, 0), V(0, 0, 1), 3), math.radians(-156), math.radians(-90)),
    Part.ArcOfCircle(Part.Circle(V(14, 7.5, 0), V(0, 0, 1), 3), math.radians(0), math.radians(90)),
    Part.LineSegment(V(17, 7.5, 0), V(17, 5.5, 0)),
    Part.ArcOfCircle(Part.Circle(V(14, 5.5, 0), V(0, 0, 1), 3), math.radians(-90), math.radians(0)),
    Part.LineSegment(V(14, 2.5, 0), V(-1.5, 2.5, 0)),
], False)
sketch10.addConstraint([
    Sketcher.Constraint("Coincident", 0, 2, 1, 2),
    Sketcher.Constraint("Coincident", 1, 1, 2, 1),
    Sketcher.Constraint("Tangent", 2, 2, 3, 2),
    Sketcher.Constraint("Tangent", 3, 1, 4, 1),
    Sketcher.Constraint("Tangent", 4, 2, 5, 2),
    Sketcher.Constraint("Tangent", 5, 1, 6, 1),
    Sketcher.Constraint("Tangent", 6, 2, 7, 1),
    Sketcher.Constraint("Tangent", 7, 2, 0, 1),
    Sketcher.Constraint("Coincident", 8, 1, 9, 1),
    Sketcher.Constraint("Tangent", 9, 2, 10, 1),
    Sketcher.Constraint("Tangent", 10, 2, 11, 1),
    Sketcher.Constraint("Tangent", 11, 2, 12, 2),
    Sketcher.Constraint("Tangent", 12, 1, 13, 1),
    Sketcher.Constraint("Tangent", 13, 2, 14, 2),
    Sketcher.Constraint("Tangent", 14, 1, 15, 1),
    Sketcher.Constraint("Coincident", 15, 2, 8, 2),
    Sketcher.Constraint("Vertical", 0),
    Sketcher.Constraint("Horizontal", 2),
    Sketcher.Constraint("Vertical", 4),
    Sketcher.Constraint("Vertical", 9),
    Sketcher.Constraint("Vertical", 13),
    Sketcher.Constraint("Horizontal", 15),
    Sketcher.Constraint("Coincident", 8, 3, 1, 3),
    Sketcher.Constraint("Equal", 3, 5),
    Sketcher.Constraint("Equal", 5, 6),
    Sketcher.Constraint("Equal", 6, 7),
    Sketcher.Constraint("Equal", 1, 8),
    Sketcher.Constraint("Equal", 7, 10),
    Sketcher.Constraint("Equal", 10, 11),
    Sketcher.Constraint("Equal", 11, 12),
    Sketcher.Constraint("Equal", 12, 14),
    Sketcher.Constraint("Symmetric", 6, 3, 10, 3, -1),
    Sketcher.Constraint("Symmetric", 3, 3, 14, 3, -1),
    Sketcher.Constraint("PointOnObject", 1, 3, -1),
    Sketcher.Constraint("Vertical", 5, 3, 6, 3),
    Sketcher.Constraint("Vertical", 6, 2, 10, 2),
    Sketcher.Constraint("Radius", 3, 3.0),
    Sketcher.Constraint("DistanceY", 4, 2, 4, 1, 2.0),
    Sketcher.Constraint("DistanceX", -1, 1, 3, 3, 14.0),
    Sketcher.Constraint("DistanceY", 3, 3, 10, 3, 19.0),
    Sketcher.Constraint("Radius", 1, 18.468279),
    Sketcher.Constraint("DistanceX", 2, 1, 2, 2, 15.541584),
    Sketcher.Constraint("DistanceX", 15, 2, 10, 2, 12.795229),
])
pocket6 = body.newObject("PartDesign::Pocket", "Pocket005")
pocket6.Profile = sketch10
pocket6.Length = 9
doc.recompute()

fillet = body.newObject("PartDesign::Fillet", "Fillet")
fillet.Base = (pocket6, edges_at(pocket6, [
    (-57, -25.888, -18),
    (-57, 25.888, -18),
    (25, 0, -5),
    (25, 16.527, -11.5),
    (25, -16.527, -11.5),
    (25, -43.62, -18),
    (35.225, 0, -18),
]))
fillet.Radius = 3
doc.recompute()

fillet2 = body.newObject("PartDesign::Fillet", "Fillet001")
fillet2.Base = (fillet, edges_at(fillet, [(0, -135, -25)]))
fillet2.Radius = 2
body2 = doc.addObject("PartDesign::Body", "Body001")

sketch11 = body2.newObject("Sketcher::SketchObject", "Sketch010")
sketch11.AttachmentSupport = (doc.getObject("XY_Plane001"), [""])
sketch11.MapMode = "FlatFace"
sketch11.addGeometry([
    Part.LineSegment(V(15, 153, 0), V(15, 165, 0)),
    Part.ArcOfCircle(Part.Circle(V(0, 165, 0), V(0, 0, 1), 15), math.radians(0), math.radians(180)),
    Part.LineSegment(V(-15, 165, 0), V(-15, 153, 0)),
    Part.LineSegment(V(-15, 153, 0), V(-33, 135, 0)),
    Part.LineSegment(V(-33, 135, 0), V(-70, 135, 0)),
    Part.ArcOfCircle(Part.Circle(V(-70, 125, 0), V(0, 0, 1), 10), math.radians(90), math.radians(180)),
    Part.LineSegment(V(-80, 125, 0), V(-80, -125, 0)),
    Part.ArcOfCircle(Part.Circle(V(-70, -125, 0), V(0, 0, 1), 10), math.radians(180), math.radians(270)),
    Part.LineSegment(V(-70, -135, 0), V(-33, -135, 0)),
    Part.LineSegment(V(-33, -135, 0), V(-15, -153, 0)),
    Part.LineSegment(V(-15, -153, 0), V(-15, -165, 0)),
    Part.ArcOfCircle(Part.Circle(V(0, -165, 0), V(0, 0, 1), 15), math.radians(180), math.radians(360)),
    Part.LineSegment(V(15, -165, 0), V(15, -153, 0)),
    Part.LineSegment(V(15, -153, 0), V(33, -135, 0)),
    Part.LineSegment(V(33, -135, 0), V(70, -135, 0)),
    Part.ArcOfCircle(Part.Circle(V(70, -125, 0), V(0, 0, 1), 10), math.radians(-90), math.radians(0)),
    Part.LineSegment(V(80, -125, 0), V(80, 125, 0)),
    Part.ArcOfCircle(Part.Circle(V(70, 125, 0), V(0, 0, 1), 10), math.radians(0), math.radians(90)),
    Part.LineSegment(V(70, 135, 0), V(33, 135, 0)),
    Part.LineSegment(V(33, 135, 0), V(15, 153, 0)),
    Part.Circle(V(-60, -101.2, 0), V(0, 0, 1), 4),
    Part.Circle(V(0, -165, 0), V(0, 0, 1), 6),
    Part.Circle(V(60, -101.2, 0), V(0, 0, 1), 4),
    Part.Circle(V(-60, 101.2, 0), V(0, 0, 1), 4),
    Part.LineSegment(V(-60, -44.7, 0), V(-60, 44.7, 0)),
    Part.ArcOfCircle(Part.Circle(V(-50, 44.7, 0), V(0, 0, 1), 10), math.radians(175.95), math.radians(180)),
    Part.ArcOfCircle(Part.Circle(V(0, 41.1, 0), V(0, 0, 1), 60.1), math.radians(4), math.radians(176)),
    Part.ArcOfCircle(Part.Circle(V(50, 44.7, 0), V(0, 0, 1), 10), math.radians(0), math.radians(4.05)),
    Part.LineSegment(V(60, 44.7, 0), V(60, -44.7, 0)),
    Part.ArcOfCircle(Part.Circle(V(50, -44.7, 0), V(0, 0, 1), 10), math.radians(-4.05), math.radians(0)),
    Part.ArcOfCircle(Part.Circle(V(0, -41.1, 0), V(0, 0, 1), 60.1), math.radians(-176), math.radians(-4)),
    Part.ArcOfCircle(Part.Circle(V(-50, -44.7, 0), V(0, 0, 1), 10), math.radians(-180), math.radians(-175.95)),
    Part.Circle(V(0, 165, 0), V(0, 0, 1), 6),
    Part.Circle(V(60, 101.2, 0), V(0, 0, 1), 4),
], False)
sketch11.addConstraint([
    Sketcher.Constraint("Tangent", 0, 2, 1, 1),
    Sketcher.Constraint("Tangent", 1, 2, 2, 1),
    Sketcher.Constraint("Coincident", 2, 2, 3, 1),
    Sketcher.Constraint("Coincident", 3, 2, 4, 1),
    Sketcher.Constraint("Tangent", 4, 2, 5, 1),
    Sketcher.Constraint("Tangent", 5, 2, 6, 1),
    Sketcher.Constraint("Tangent", 6, 2, 7, 1),
    Sketcher.Constraint("Tangent", 7, 2, 8, 1),
    Sketcher.Constraint("Coincident", 8, 2, 9, 1),
    Sketcher.Constraint("Coincident", 9, 2, 10, 1),
    Sketcher.Constraint("Tangent", 10, 2, 11, 1),
    Sketcher.Constraint("Tangent", 11, 2, 12, 1),
    Sketcher.Constraint("Coincident", 12, 2, 13, 1),
    Sketcher.Constraint("Coincident", 13, 2, 14, 1),
    Sketcher.Constraint("Tangent", 14, 2, 15, 1),
    Sketcher.Constraint("Tangent", 15, 2, 16, 1),
    Sketcher.Constraint("Tangent", 16, 2, 17, 1),
    Sketcher.Constraint("Tangent", 17, 2, 18, 1),
    Sketcher.Constraint("Coincident", 18, 2, 19, 1),
    Sketcher.Constraint("Coincident", 19, 2, 0, 1),
    Sketcher.Constraint("Tangent", 24, 2, 25, 2),
    Sketcher.Constraint("Tangent", 25, 1, 26, 2),
    Sketcher.Constraint("Tangent", 26, 1, 27, 2),
    Sketcher.Constraint("Tangent", 27, 1, 28, 1),
    Sketcher.Constraint("Tangent", 28, 2, 29, 2),
    Sketcher.Constraint("Tangent", 29, 1, 30, 2),
    Sketcher.Constraint("Tangent", 30, 1, 31, 2),
    Sketcher.Constraint("Tangent", 31, 1, 24, 1),
    Sketcher.Constraint("Vertical", 0),
    Sketcher.Constraint("Vertical", 2),
    Sketcher.Constraint("Horizontal", 4),
    Sketcher.Constraint("Vertical", 6),
    Sketcher.Constraint("Horizontal", 8),
    Sketcher.Constraint("Vertical", 10),
    Sketcher.Constraint("Vertical", 12),
    Sketcher.Constraint("Horizontal", 14),
    Sketcher.Constraint("Vertical", 16),
    Sketcher.Constraint("Horizontal", 18),
    Sketcher.Constraint("Vertical", 24),
    Sketcher.Constraint("Vertical", 28),
    Sketcher.Constraint("Coincident", 21, 3, 11, 3),
    Sketcher.Constraint("Coincident", 32, 3, 1, 3),
    Sketcher.Constraint("Equal", 5, 7),
    Sketcher.Constraint("Equal", 1, 11),
    Sketcher.Constraint("Equal", 7, 15),
    Sketcher.Constraint("Equal", 15, 17),
    Sketcher.Constraint("Equal", 20, 22),
    Sketcher.Constraint("Equal", 22, 23),
    Sketcher.Constraint("Equal", 17, 25),
    Sketcher.Constraint("Equal", 25, 27),
    Sketcher.Constraint("Equal", 27, 29),
    Sketcher.Constraint("Equal", 26, 30),
    Sketcher.Constraint("Equal", 29, 31),
    Sketcher.Constraint("Equal", 21, 32),
    Sketcher.Constraint("Equal", 23, 33),
    Sketcher.Constraint("Symmetric", 1, 3, 11, 3, -1, 1),
    Sketcher.Constraint("Symmetric", 5, 3, 15, 3, -1, 1),
    Sketcher.Constraint("Symmetric", 22, 3, 23, 3, -1, 1),
    Sketcher.Constraint("Symmetric", 25, 3, 29, 3, -1, 1),
    Sketcher.Constraint("Symmetric", 20, 3, 33, 3, -1, 1),
    Sketcher.Constraint("Symmetric", 8, 2, 18, 2, -1, 1),
    Sketcher.Constraint("Symmetric", 20, 3, 22, 3, -2),
    Sketcher.Constraint("Symmetric", 9, 2, 12, 2, -2),
    Sketcher.Constraint("Symmetric", 8, 2, 13, 2, -2),
    Sketcher.Constraint("Symmetric", 26, 3, 30, 3, -1),
    Sketcher.Constraint("Perpendicular", 3, 9),
    Sketcher.Constraint("Perpendicular", 9, 13),
    Sketcher.Constraint("Perpendicular", 13, 19),
    Sketcher.Constraint("Horizontal", 2, 2, 19, 2),
    Sketcher.Constraint("Vertical", 23, 3, 24, 2),
    Sketcher.Constraint("Diameter", 20, 8.0),
    Sketcher.Constraint("Diameter", 21, 12.0),
    Sketcher.Constraint("Radius", 1, 15.0),
    Sketcher.Constraint("Radius", 5, 10.0),
    Sketcher.Constraint("DistanceX", 4, 2, 4, 1, 37.0),
    Sketcher.Constraint("DistanceY", 0, 1, 0, 2, 12.0),
    Sketcher.Constraint("DistanceY", 6, 2, 6, 1, 250.0),
    Sketcher.Constraint("DistanceY", -1, 1, 1, 3, 165.0),
    Sketcher.Constraint("DistanceX", 20, 3, -1, 1, 60.0),
    Sketcher.Constraint("Radius", 26, 60.125),
    Sketcher.Constraint("DistanceY", 20, 3, 23, 3, 202.5),
    Sketcher.Constraint("DistanceY", 30, 3, 26, 3, 82.25),
])
pad5 = body2.newObject("PartDesign::Pad", "Pad004")
pad5.Profile = sketch11
pad5.Length = 12

doc.recompute()
